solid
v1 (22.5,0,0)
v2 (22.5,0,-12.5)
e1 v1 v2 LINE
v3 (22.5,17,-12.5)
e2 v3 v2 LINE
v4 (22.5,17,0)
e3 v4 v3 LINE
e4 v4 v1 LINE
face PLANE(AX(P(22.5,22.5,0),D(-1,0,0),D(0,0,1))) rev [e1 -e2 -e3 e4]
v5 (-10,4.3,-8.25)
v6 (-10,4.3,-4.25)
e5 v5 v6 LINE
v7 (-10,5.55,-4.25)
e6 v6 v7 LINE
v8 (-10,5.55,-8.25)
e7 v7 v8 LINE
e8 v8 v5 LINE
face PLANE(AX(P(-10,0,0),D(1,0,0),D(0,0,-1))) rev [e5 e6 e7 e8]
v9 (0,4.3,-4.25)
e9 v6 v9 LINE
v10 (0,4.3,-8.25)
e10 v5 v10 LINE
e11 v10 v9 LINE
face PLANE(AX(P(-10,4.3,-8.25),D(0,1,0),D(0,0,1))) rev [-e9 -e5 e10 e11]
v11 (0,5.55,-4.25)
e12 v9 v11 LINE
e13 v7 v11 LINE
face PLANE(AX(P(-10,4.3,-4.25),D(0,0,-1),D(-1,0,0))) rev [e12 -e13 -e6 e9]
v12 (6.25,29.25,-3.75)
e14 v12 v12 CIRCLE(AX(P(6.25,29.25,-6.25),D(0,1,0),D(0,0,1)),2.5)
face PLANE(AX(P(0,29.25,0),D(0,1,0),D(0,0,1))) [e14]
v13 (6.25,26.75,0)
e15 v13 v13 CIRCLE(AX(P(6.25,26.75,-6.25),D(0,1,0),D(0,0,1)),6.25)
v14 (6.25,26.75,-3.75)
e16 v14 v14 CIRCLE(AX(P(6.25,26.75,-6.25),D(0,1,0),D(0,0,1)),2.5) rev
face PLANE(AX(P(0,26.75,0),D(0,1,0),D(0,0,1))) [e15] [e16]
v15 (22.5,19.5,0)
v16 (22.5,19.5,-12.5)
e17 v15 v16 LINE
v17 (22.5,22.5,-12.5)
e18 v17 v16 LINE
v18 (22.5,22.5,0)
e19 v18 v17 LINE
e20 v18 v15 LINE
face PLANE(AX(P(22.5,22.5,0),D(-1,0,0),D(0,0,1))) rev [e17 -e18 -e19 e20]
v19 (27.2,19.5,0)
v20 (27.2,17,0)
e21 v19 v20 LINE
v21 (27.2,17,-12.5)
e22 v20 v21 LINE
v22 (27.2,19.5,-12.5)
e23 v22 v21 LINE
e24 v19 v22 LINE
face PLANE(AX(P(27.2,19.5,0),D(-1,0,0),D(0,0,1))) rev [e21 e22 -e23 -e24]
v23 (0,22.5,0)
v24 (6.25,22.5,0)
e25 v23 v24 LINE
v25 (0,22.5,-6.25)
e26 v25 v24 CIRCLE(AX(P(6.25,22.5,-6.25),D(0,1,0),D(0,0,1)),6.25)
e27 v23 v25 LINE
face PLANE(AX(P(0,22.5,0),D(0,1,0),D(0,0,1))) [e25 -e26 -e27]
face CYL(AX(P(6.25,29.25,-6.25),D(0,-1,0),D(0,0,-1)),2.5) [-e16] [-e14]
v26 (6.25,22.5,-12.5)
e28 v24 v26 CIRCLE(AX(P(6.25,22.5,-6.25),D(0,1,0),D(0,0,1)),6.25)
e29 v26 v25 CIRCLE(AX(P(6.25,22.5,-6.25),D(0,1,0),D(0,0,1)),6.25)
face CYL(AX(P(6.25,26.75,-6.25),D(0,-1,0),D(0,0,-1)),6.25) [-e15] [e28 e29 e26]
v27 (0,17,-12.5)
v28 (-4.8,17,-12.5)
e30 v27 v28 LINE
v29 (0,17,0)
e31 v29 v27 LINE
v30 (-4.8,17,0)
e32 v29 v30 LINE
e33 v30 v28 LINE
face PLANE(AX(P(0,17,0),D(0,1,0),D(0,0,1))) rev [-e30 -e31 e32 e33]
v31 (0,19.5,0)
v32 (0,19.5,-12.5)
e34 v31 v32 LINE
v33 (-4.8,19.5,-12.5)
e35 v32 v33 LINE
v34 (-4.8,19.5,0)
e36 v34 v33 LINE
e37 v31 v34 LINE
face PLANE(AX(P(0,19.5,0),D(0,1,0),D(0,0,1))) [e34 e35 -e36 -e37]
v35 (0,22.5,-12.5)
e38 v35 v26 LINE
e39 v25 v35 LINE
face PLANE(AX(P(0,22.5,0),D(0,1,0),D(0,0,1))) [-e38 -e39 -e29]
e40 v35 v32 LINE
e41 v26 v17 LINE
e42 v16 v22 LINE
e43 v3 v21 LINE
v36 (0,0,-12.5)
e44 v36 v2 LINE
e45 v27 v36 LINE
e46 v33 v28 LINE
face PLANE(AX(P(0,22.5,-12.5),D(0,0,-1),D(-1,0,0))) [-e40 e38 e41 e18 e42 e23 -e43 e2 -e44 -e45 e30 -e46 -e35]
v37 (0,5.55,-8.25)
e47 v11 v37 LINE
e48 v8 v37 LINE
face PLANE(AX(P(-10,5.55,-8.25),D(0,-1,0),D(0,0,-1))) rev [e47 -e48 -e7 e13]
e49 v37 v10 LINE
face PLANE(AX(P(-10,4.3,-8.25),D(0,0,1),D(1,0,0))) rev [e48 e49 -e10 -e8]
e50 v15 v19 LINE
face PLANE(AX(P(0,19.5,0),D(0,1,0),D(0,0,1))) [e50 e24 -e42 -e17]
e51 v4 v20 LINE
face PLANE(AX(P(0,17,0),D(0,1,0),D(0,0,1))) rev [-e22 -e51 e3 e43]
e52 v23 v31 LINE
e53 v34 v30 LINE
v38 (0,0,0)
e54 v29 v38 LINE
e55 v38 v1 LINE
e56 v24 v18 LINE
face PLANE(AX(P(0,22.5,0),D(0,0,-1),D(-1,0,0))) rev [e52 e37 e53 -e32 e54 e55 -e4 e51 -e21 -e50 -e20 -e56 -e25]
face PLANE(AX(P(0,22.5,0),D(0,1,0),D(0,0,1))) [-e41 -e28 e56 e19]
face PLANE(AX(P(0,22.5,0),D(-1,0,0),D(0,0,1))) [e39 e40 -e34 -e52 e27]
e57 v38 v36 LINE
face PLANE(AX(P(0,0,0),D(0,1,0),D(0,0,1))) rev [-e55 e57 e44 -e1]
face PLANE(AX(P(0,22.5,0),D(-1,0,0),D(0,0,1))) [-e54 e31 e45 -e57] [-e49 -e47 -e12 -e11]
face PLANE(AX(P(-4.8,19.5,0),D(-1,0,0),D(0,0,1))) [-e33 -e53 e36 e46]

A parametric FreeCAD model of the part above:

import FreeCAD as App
import Part
import Sketcher
Q = App.Units.Quantity

doc = App.newDocument("Part")
body = doc.addObject("PartDesign::Body", "Body")

# Sketch on XZ plane
sketch1 = doc.addObject("Sketcher::SketchObject", "Sketch")
body.addObject(sketch1)
sketch1.AttachmentSupport = (doc.XZ_Plane, [""])
sketch1.MapMode = "FlatFace"
sketch1.addGeometry([
    Part.LineSegment(App.Vector(0, -12.5, 0), App.Vector(0, 0, 0)),
    Part.LineSegment(App.Vector(0, 0, 0), App.Vector(22.5, 0, 0)),
    Part.LineSegment(App.Vector(22.5, 0, 0), App.Vector(22.5, -12.5, 0)),
    Part.LineSegment(App.Vector(22.5, -12.5, 0), App.Vector(0, -12.5, 0)),
], False)
sketch1.addConstraint([
    Sketcher.Constraint("Coincident", 0, 2, 1, 1),
    Sketcher.Constraint("Coincident", 1, 2, 2, 1),
    Sketcher.Constraint("Coincident", 2, 2, 3, 1),
    Sketcher.Constraint("Coincident", 3, 2, 0, 1),
    Sketcher.Constraint("Vertical", 0),
    Sketcher.Constraint("Horizontal", 1),
    Sketcher.Constraint("Vertical", 2),
    Sketcher.Constraint("Horizontal", 3),
    Sketcher.Constraint("Coincident", 0, 2, -1, 1),
    Sketcher.Constraint("DistanceX", 1, 1, 1, 2, Q("22.5 mm")),
    Sketcher.Constraint("DistanceY", 0, 1, 0, 2, Q("12.5 mm")),
])
pad1 = doc.addObject("PartDesign::Pad", "Pad")
body.addObject(pad1)
pad1.Profile = sketch1
pad1.Length = 22.5
pad1.Reversed = True

# Sketch on XZ plane
sketch2 = doc.addObject("Sketcher::SketchObject", "Sketch001")
body.addObject(sketch2)
sketch2.AttachmentSupport = (doc.XZ_Plane, [""])
sketch2.MapMode = "FlatFace"
sketch2.AttachmentOffset = App.Placement(App.Vector(0, 0, -17), App.Rotation())
sketch2.addGeometry([
    Part.LineSegment(App.Vector(-4.8, -12.5, 0), App.Vector(-4.8, 0, 0)),  # 0
    Part.LineSegment(App.Vector(-4.8, 0, 0), App.Vector(0, 0, 0)),  # 1
    Part.LineSegment(App.Vector(0, 0, 0), App.Vector(0, -12.5, 0)),  # 2
    Part.LineSegment(App.Vector(0, -12.5, 0), App.Vector(-4.8, -12.5, 0)),  # 3
    Part.LineSegment(App.Vector(22.5, -12.5, 0), App.Vector(22.5, 0, 0)),  # 4
    Part.LineSegment(App.Vector(22.5, 0, 0), App.Vector(27.2, 0, 0)),  # 5
    Part.LineSegment(App.Vector(27.2, 0, 0), App.Vector(27.2, -12.5, 0)),  # 6
    Part.LineSegment(App.Vector(27.2, -12.5, 0), App.Vector(22.5, -12.5, 0)),  # 7
], False)
sketch2.addConstraint([
    Sketcher.Constraint("Coincident", 0, 2, 1, 1),
    Sketcher.Constraint("Coincident", 1, 2, 2, 1),
    Sketcher.Constraint("Coincident", 2, 2, 3, 1),
    Sketcher.Constraint("Coincident", 3, 2, 0, 1),
    Sketcher.Constraint("Coincident", 4, 2, 5, 1),
    Sketcher.Constraint("Coincident", 5, 2, 6, 1),
    Sketcher.Constraint("Coincident", 6, 2, 7, 1),
    Sketcher.Constraint("Coincident", 7, 2, 4, 1),
    Sketcher.Constraint("Vertical", 0),
    Sketcher.Constraint("Horizontal", 1),
    Sketcher.Constraint("Vertical", 2),
    Sketcher.Constraint("Horizontal", 3),
    Sketcher.Constraint("Vertical", 4),
    Sketcher.Constraint("Horizontal", 5),
    Sketcher.Constraint("Vertical", 6),
    Sketcher.Constraint("Horizontal", 7),
    Sketcher.Constraint("Coincident", 1, 2, -1, 1),
    Sketcher.Constraint("PointOnObject", 4, 2, -1),
    Sketcher.Constraint("Horizontal", 3, 2, 6, 2),
    Sketcher.Constraint("DistanceX", 1, 1, 1, 2, Q("4.8 mm")),
    Sketcher.Constraint("DistanceX", 5, 1, 5, 2, Q("4.7 mm")),
    Sketcher.Constraint("DistanceY", 0, 1, 0, 2, Q("12.5 mm")),
    Sketcher.Constraint("DistanceX", 0, 2, 5, 2, Q("32 mm")),
])
pad2 = doc.addObject("PartDesign::Pad", "Pad001")
body.addObject(pad2)
pad2.Profile = sketch2
pad2.Length = 2.5
pad2.Reversed = True

# Sketch on XZ plane
sketch3 = doc.addObject("Sketcher::SketchObject", "Sketch002")
body.addObject(sketch3)
sketch3.AttachmentSupport = (doc.XZ_Plane, [""])
sketch3.MapMode = "FlatFace"
sketch3.AttachmentOffset = App.Placement(App.Vector(0, 0, -22.5), App.Rotation())
sketch3.addGeometry([
    Part.Circle(App.Vector(6.25, -6.25, 0), App.Vector(0, 0, 1), 6.25),
    Part.Circle(App.Vector(6.25, -6.25, 0), App.Vector(0, 0, 1), 2.5),
], False)
sketch3.addConstraint([
    Sketcher.Constraint("Coincident", 1, 3, 0, 3),
    Sketcher.Constraint("Diameter", 1, Q("5 mm")),
    Sketcher.Constraint("Diameter", 0, Q("12.5 mm")),
    Sketcher.Constraint("DistanceX", -1, 1, 0, 3, Q("6.25 mm")),
    Sketcher.Constraint("DistanceY", 0, 3, -1, 1, Q("6.25 mm")),
])
pad3 = doc.addObject("PartDesign::Pad", "Pad002")
body.addObject(pad3)
pad3.Profile = sketch3
pad3.Length = 4.25
pad3.Reversed = True

# Sketch on XZ plane
sketch4 = doc.addObject("Sketcher::SketchObject", "Sketch003")
body.addObject(sketch4)
sketch4.AttachmentSupport = (doc.XZ_Plane, [""])
sketch4.MapMode = "FlatFace"
sketch4.AttachmentOffset = App.Placement(App.Vector(0, 0, -22.5), App.Rotation())
sketch4.addGeometry(Part.Circle(App.Vector(6.25, -6.25, 0), App.Vector(0, 0, 1), 2.5), False)
sketch4.addConstraint([
    Sketcher.Constraint("Diameter", 0, Q("5 mm")),
    Sketcher.Constraint("DistanceX", -1, 1, 0, 3, Q("6.25 mm")),
    Sketcher.Constraint("DistanceY", 0, 3, -1, 1, Q("6.25 mm")),
])
pad4 = doc.addObject("PartDesign::Pad", "Pad003")
body.addObject(pad4)
pad4.Profile = sketch4
pad4.Length = 6.75
pad4.Reversed = True

# Sketch on YZ plane
sketch5 = doc.addObject("Sketcher::SketchObject", "Sketch004")
body.addObject(sketch5)
sketch5.AttachmentSupport = (doc.YZ_Plane, [""])
sketch5.MapMode = "FlatFace"
sketch5.addGeometry([
    Part.LineSegment(App.Vector(5.55, -8.25, 0), App.Vector(4.3, -8.25, 0)),
    Part.LineSegment(App.Vector(4.3, -8.25, 0), App.Vector(4.3, -4.25, 0)),
    Part.LineSegment(App.Vector(4.3, -4.25, 0), App.Vector(5.55, -4.25, 0)),
    Part.LineSegment(App.Vector(5.55, -4.25, 0), App.Vector(5.55, -8.25, 0)),
], False)
sketch5.addConstraint([
    Sketcher.Constraint("Coincident", 0, 2, 1, 1),
    Sketcher.Constraint("Coincident", 1, 2, 2, 1),
    Sketcher.Constraint("Coincident", 2, 2, 3, 1),
    Sketcher.Constraint("Coincident", 3, 2, 0, 1),
    Sketcher.Constraint("Horizontal", 0),
    Sketcher.Constraint("Vertical", 1),
    Sketcher.Constraint("Horizontal", 2),
    Sketcher.Constraint("Vertical", 3),
    Sketcher.Constraint("DistanceY", 1, 1, 1, 2, Q("4 mm")),
    Sketcher.Constraint("DistanceX", 0, 2, 0, 1, Q("1.25 mm")),
    Sketcher.Constraint("DistanceX", -1, 1, 0, 2, Q("4.3 mm")),
    Sketcher.Constraint("DistanceY", 0, 2, -1, 1, Q("8.25 mm")),
])
pad5 = doc.addObject("PartDesign::Pad", "Pad004")
body.addObject(pad5)
pad5.Profile = sketch5
pad5.Length = 10
pad5.Reversed = True

doc.recompute()
